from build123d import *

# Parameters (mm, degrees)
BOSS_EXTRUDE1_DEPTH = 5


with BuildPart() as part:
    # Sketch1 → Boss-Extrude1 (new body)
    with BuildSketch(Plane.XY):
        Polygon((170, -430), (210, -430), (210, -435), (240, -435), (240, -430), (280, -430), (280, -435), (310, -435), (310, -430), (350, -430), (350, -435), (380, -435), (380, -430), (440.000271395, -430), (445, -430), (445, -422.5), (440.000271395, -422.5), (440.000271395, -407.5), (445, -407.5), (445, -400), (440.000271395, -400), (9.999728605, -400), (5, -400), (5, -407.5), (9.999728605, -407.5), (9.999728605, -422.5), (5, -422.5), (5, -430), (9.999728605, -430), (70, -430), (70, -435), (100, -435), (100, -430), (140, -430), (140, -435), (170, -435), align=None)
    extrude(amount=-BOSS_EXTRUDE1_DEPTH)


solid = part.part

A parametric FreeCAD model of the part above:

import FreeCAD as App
import Part
import Sketcher

V = App.Vector
Q = App.Units.Quantity

doc = App.newDocument("Part")
params = doc.addObject("Spreadsheet::Sheet", "Params")
for row, (alias, value) in enumerate([
    ("sketch1_width", "40 mm"),
    ("sketch1_width2", "30 mm"),
    ("sketch1_width3", "65 mm"),
    ("sketch1_height", "5 mm"),
    ("sketch1_height2", "15 mm"),
    ("pad1_length", "5 mm"),
], start=1):
    params.set(f"A{row}", alias)
    params.set(f"B{row}", "=" + value)
    params.setAlias(f"B{row}", alias)

body = doc.addObject("PartDesign::Body", "Body")

# Sketch on XY plane
sketch1 = body.newObject("Sketcher::SketchObject", "Sketch")
sketch1.AttachmentSupport = (doc.getObject("XY_Plane"), [""])
sketch1.MapMode = "FlatFace"
sketch1.addGeometry(Part.LineSegment(V(170, -430, 0), V(210, -430, 0)), False)
sketch1.addGeometry(Part.LineSegment(V(210, -430, 0), V(210, -435, 0)), False)
sketch1.addGeometry(Part.LineSegment(V(210, -435, 0), V(240, -435, 0)), False)
sketch1.addGeometry(Part.LineSegment(V(240, -435, 0), V(240, -430, 0)), False)
sketch1.addGeometry(Part.LineSegment(V(240, -430, 0), V(280, -430, 0)), False)
sketch1.addGeometry(Part.LineSegment(V(280, -430, 0), V(280, -435, 0)), False)
sketch1.addGeometry(Part.LineSegment(V(280, -435, 0), V(310, -435, 0)), False)
sketch1.addGeometry(Part.LineSegment(V(310, -435, 0), V(310, -430, 0)), False)
sketch1.addGeometry(Part.LineSegment(V(310, -430, 0), V(350, -430, 0)), False)
sketch1.addGeometry(Part.LineSegment(V(350, -430, 0), V(350, -435, 0)), False)
sketch1.addGeometry(Part.LineSegment(V(350, -435, 0), V(380, -435, 0)), False)
sketch1.addGeometry(Part.LineSegment(V(380, -435, 0), V(380, -430, 0)), False)
sketch1.addGeometry(Part.LineSegment(V(380, -430, 0), V(445, -430, 0)), False)
sketch1.addGeometry(Part.LineSegment(V(445, -430, 0), V(445, -422.5, 0)), False)
sketch1.addGeometry(Part.LineSegment(V(445, -422.5, 0), V(440, -422.5, 0)), False)
sketch1.addGeometry(Part.LineSegment(V(440, -422.5, 0), V(440, -407.5, 0)), False)
sketch1.addGeometry(Part.LineSegment(V(440, -407.5, 0), V(445, -407.5, 0)), False)
sketch1.addGeometry(Part.LineSegment(V(445, -407.5, 0), V(445, -400, 0)), False)
sketch1.addGeometry(Part.LineSegment(V(445, -400, 0), V(5, -400, 0)), False)
sketch1.addGeometry(Part.LineSegment(V(5, -400, 0), V(5, -407.5, 0)), False)
sketch1.addGeometry(Part.LineSegment(V(5, -407.5, 0), V(10, -407.5, 0)), False)
sketch1.addGeometry(Part.LineSegment(V(10, -407.5, 0), V(10, -422.5, 0)), False)
sketch1.addGeometry(Part.LineSegment(V(10, -422.5, 0), V(5, -422.5, 0)), False)
sketch1.addGeometry(Part.LineSegment(V(5, -422.5, 0), V(5, -430, 0)), False)
sketch1.addGeometry(Part.LineSegment(V(5, -430, 0), V(70, -430, 0)), False)
sketch1.addGeometry(Part.LineSegment(V(70, -430, 0), V(70, -435, 0)), False)
sketch1.addGeometry(Part.LineSegment(V(70, -435, 0), V(100, -435, 0)), False)
sketch1.addGeometry(Part.LineSegment(V(100, -435, 0), V(100, -430, 0)), False)
sketch1.addGeometry(Part.LineSegment(V(100, -430, 0), V(140, -430, 0)), False)
sketch1.addGeometry(Part.LineSegment(V(140, -430, 0), V(140, -435, 0)), False)
sketch1.addGeometry(Part.LineSegment(V(140, -435, 0), V(170, -435, 0)), False)
sketch1.addGeometry(Part.LineSegment(V(170, -435, 0), V(170, -430, 0)), False)
sketch1.addConstraint(Sketcher.Constraint("Coincident", 0, 2, 1, 1))
sketch1.addConstraint(Sketcher.Constraint("Coincident", 1, 2, 2, 1))
sketch1.addConstraint(Sketcher.Constraint("Coincident", 2, 2, 3, 1))
sketch1.addConstraint(Sketcher.Constraint("Coincident", 3, 2, 4, 1))
sketch1.addConstraint(Sketcher.Constraint("Coincident", 4, 2, 5, 1))
sketch1.addConstraint(Sketcher.Constraint("Coincident", 5, 2, 6, 1))
sketch1.addConstraint(Sketcher.Constraint("Coincident", 6, 2, 7, 1))
sketch1.addConstraint(Sketcher.Constraint("Coincident", 7, 2, 8, 1))
sketch1.addConstraint(Sketcher.Constraint("Coincident", 8, 2, 9, 1))
sketch1.addConstraint(Sketcher.Constraint("Coincident", 9, 2, 10, 1))
sketch1.addConstraint(Sketcher.Constraint("Coincident", 10, 2, 11, 1))
sketch1.addConstraint(Sketcher.Constraint("Coincident", 11, 2, 12, 1))
sketch1.addConstraint(Sketcher.Constraint("Coincident", 12, 2, 13, 1))
sketch1.addConstraint(Sketcher.Constraint("Coincident", 13, 2, 14, 1))
sketch1.addConstraint(Sketcher.Constraint("Coincident", 14, 2, 15, 1))
sketch1.addConstraint(Sketcher.Constraint("Coincident", 15, 2, 16, 1))
sketch1.addConstraint(Sketcher.Constraint("Coincident", 16, 2, 17, 1))
sketch1.addConstraint(Sketcher.Constraint("Coincident", 17, 2, 18, 1))
sketch1.addConstraint(Sketcher.Constraint("Coincident", 18, 2, 19, 1))
sketch1.addConstraint(Sketcher.Constraint("Coincident", 19, 2, 20, 1))
sketch1.addConstraint(Sketcher.Constraint("Coincident", 20, 2, 21, 1))
sketch1.addConstraint(Sketcher.Constraint("Coincident", 21, 2, 22, 1))
sketch1.addConstraint(Sketcher.Constraint("Coincident", 22, 2, 23, 1))
sketch1.addConstraint(Sketcher.Constraint("Coincident", 23, 2, 24, 1))
sketch1.addConstraint(Sketcher.Constraint("Coincident", 24, 2, 25, 1))
sketch1.addConstraint(Sketcher.Constraint("Coincident", 25, 2, 26, 1))
sketch1.addConstraint(Sketcher.Constraint("Coincident", 26, 2, 27, 1))
sketch1.addConstraint(Sketcher.Constraint("Coincident", 27, 2, 28, 1))
sketch1.addConstraint(Sketcher.Constraint("Coincident", 28, 2, 29, 1))
sketch1.addConstraint(Sketcher.Constraint("Coincident", 29, 2, 30, 1))
sketch1.addConstraint(Sketcher.Constraint("Coincident", 30, 2, 31, 1))
sketch1.addConstraint(Sketcher.Constraint("Coincident", 31, 2, 0, 1))
sketch1.addConstraint(Sketcher.Constraint("Horizontal", 0))
sketch1.addConstraint(Sketcher.Constraint("Vertical", 1))
sketch1.addConstraint(Sketcher.Constraint("Horizontal", 2))
sketch1.addConstraint(Sketcher.Constraint("Vertical", 3))
sketch1.addConstraint(Sketcher.Constraint("Horizontal", 4))
sketch1.addConstraint(Sketcher.Constraint("Vertical", 5))
sketch1.addConstraint(Sketcher.Constraint("Horizontal", 6))
sketch1.addConstraint(Sketcher.Constraint("Vertical", 7))
sketch1.addConstraint(Sketcher.Constraint("Horizontal", 8))
sketch1.addConstraint(Sketcher.Constraint("Vertical", 9))
sketch1.addConstraint(Sketcher.Constraint("Horizontal", 10))
sketch1.addConstraint(Sketcher.Constraint("Vertical", 11))
sketch1.addConstraint(Sketcher.Constraint("Horizontal", 12))
sketch1.addConstraint(Sketcher.Constraint("Vertical", 13))
sketch1.addConstraint(Sketcher.Constraint("Horizontal", 14))
sketch1.addConstraint(Sketcher.Constraint("Vertical", 15))
sketch1.addConstraint(Sketcher.Constraint("Horizontal", 16))
sketch1.addConstraint(Sketcher.Constraint("Vertical", 17))
sketch1.addConstraint(Sketcher.Constraint("Horizontal", 18))
sketch1.addConstraint(Sketcher.Constraint("Vertical", 19))
sketch1.addConstraint(Sketcher.Constraint("Horizontal", 20))
sketch1.addConstraint(Sketcher.Constraint("Vertical", 21))
sketch1.addConstraint(Sketcher.Constraint("Horizontal", 22))
sketch1.addConstraint(Sketcher.Constraint("Vertical", 23))
sketch1.addConstraint(Sketcher.Constraint("Horizontal", 24))
sketch1.addConstraint(Sketcher.Constraint("Vertical", 25))
sketch1.addConstraint(Sketcher.Constraint("Horizontal", 26))
sketch1.addConstraint(Sketcher.Constraint("Vertical", 27))
sketch1.addConstraint(Sketcher.Constraint("Horizontal", 28))
sketch1.addConstraint(Sketcher.Constraint("Vertical", 29))
sketch1.addConstraint(Sketcher.Constraint("Horizontal", 30))
sketch1.addConstraint(Sketcher.Constraint("Vertical", 31))
sketch1.addConstraint(Sketcher.Constraint("Horizontal", 0, 2, 3, 2))
sketch1.addConstraint(Sketcher.Constraint("Horizontal", 2, 2, 5, 2))
sketch1.addConstraint(Sketcher.Constraint("Horizontal", 4, 2, 7, 2))
sketch1.addConstraint(Sketcher.Constraint("Horizontal", 6, 2, 9, 2))
sketch1.addConstraint(Sketcher.Constraint("Horizontal", 8, 2, 11, 2))
sketch1.addConstraint(Sketcher.Constraint("Horizontal", 16, 2, 19, 2))
sketch1.addConstraint(Sketcher.Constraint("Horizontal", 14, 2, 21, 2))
sketch1.addConstraint(Sketcher.Constraint("Horizontal", 12, 2, 23, 2))
sketch1.addConstraint(Sketcher.Constraint("Horizontal", 10, 2, 25, 2))
sketch1.addConstraint(Sketcher.Constraint("Horizontal", 24, 2, 27, 2))
sketch1.addConstraint(Sketcher.Constraint("Horizontal", 26, 2, 29, 2))
sketch1.addConstraint(Sketcher.Constraint("Vertical", 13, 2, 16, 2))
sketch1.addConstraint(Sketcher.Constraint("Vertical", 19, 2, 22, 2))
sketch1.addConstraint(Sketcher.Constraint("Equal", 0, 4))
sketch1.addConstraint(Sketcher.Constraint("Equal", 2, 6))
sketch1.addConstraint(Sketcher.Constraint("Equal", 4, 8))
sketch1.addConstraint(Sketcher.Constraint("Equal", 6, 10))
sketch1.addConstraint(Sketcher.Constraint("Equal", 16, 20))
sketch1.addConstraint(Sketcher.Constraint("Equal", 12, 24))
sketch1.addConstraint(Sketcher.Constraint("Equal", 10, 26))
sketch1.addConstraint(Sketcher.Constraint("Equal", 8, 28))
sketch1.addConstraint(Sketcher.Constraint("Equal", 26, 30))
sketch1.addConstraint(Sketcher.Constraint("Equal", 13, 17))
sketch1.addConstraint(Sketcher.Constraint("DistanceX", 0, 1, 0, 2, Q("40 mm")))
sketch1.addConstraint(Sketcher.Constraint("DistanceX", 2, 1, 2, 2, Q("30 mm")))
sketch1.addConstraint(Sketcher.Constraint("DistanceX", 12, 1, 12, 2, Q("65 mm")))
sketch1.addConstraint(Sketcher.Constraint("DistanceY", 1, 2, 1, 1, Q("5 mm")))
sketch1.addConstraint(Sketcher.Constraint("DistanceY", 15, 1, 15, 2, Q("15 mm")))
sketch1.addConstraint(Sketcher.Constraint("DistanceY", 13, 1, 13, 2, Q("7.5 mm")))
sketch1.addConstraint(Sketcher.Constraint("DistanceX", -1, 1, 0, 2, Q("210 mm")))
sketch1.addConstraint(Sketcher.Constraint("DistanceY", 0, 2, -1, 1, Q("430 mm")))
sketch1.addConstraint(Sketcher.Constraint("DistanceX", 14, 2, 14, 1, Q("4.999729 mm")))
sketch1.setExpression("Constraints[87]", "Params.sketch1_width")
sketch1.setExpression("Constraints[88]", "Params.sketch1_width2")
sketch1.setExpression("Constraints[89]", "Params.sketch1_width3")
sketch1.setExpression("Constraints[90]", "Params.sketch1_height")
sketch1.setExpression("Constraints[91]", "Params.sketch1_height2")
pad1 = body.newObject("PartDesign::Pad", "Pad")
pad1.Profile = sketch1
pad1.setExpression("Length", "Params.pad1_length")
pad1.Reversed = True

doc.recompute()
